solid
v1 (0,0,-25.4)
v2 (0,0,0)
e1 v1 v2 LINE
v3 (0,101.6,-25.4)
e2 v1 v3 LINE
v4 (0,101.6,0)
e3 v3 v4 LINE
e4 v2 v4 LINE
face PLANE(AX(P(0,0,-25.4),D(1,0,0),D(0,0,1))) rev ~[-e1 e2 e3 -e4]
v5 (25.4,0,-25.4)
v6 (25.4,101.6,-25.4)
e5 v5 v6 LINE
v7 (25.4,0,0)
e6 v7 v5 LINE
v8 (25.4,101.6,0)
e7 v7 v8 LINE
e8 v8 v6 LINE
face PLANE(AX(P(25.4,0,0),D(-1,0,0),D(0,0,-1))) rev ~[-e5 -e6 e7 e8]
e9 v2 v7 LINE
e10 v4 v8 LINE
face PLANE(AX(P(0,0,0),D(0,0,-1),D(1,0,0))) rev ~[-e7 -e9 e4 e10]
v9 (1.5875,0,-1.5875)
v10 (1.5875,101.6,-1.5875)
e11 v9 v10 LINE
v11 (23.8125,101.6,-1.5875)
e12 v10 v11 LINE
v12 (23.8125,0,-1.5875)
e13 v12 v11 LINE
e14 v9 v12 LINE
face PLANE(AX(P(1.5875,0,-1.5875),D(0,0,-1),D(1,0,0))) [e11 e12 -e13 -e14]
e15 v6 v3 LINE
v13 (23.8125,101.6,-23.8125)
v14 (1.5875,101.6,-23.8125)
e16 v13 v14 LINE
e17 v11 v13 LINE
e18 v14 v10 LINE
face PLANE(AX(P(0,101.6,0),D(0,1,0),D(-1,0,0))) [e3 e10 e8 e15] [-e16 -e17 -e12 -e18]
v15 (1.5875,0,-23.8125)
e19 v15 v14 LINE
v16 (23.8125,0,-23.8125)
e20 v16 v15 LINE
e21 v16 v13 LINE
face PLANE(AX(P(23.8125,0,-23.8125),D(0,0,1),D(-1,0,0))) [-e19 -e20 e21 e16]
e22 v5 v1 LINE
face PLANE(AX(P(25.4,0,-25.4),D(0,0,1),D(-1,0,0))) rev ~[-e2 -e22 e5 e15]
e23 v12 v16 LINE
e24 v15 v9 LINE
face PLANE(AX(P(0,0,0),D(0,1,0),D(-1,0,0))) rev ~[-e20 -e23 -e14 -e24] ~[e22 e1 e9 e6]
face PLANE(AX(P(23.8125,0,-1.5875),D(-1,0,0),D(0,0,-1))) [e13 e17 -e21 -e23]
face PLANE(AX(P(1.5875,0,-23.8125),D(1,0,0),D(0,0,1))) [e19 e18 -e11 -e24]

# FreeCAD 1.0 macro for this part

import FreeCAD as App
import Part
import Sketcher
from FreeCAD import Vector
Q = App.Units.Quantity


def add_polygon(sketch, points):
    """Adds a closed chain of lines whose ends are joined by coincident constraints."""
    first, n = sketch.GeometryCount, len(points)
    for a, b in zip(points, points[1:] + points[:1]):
        sketch.addGeometry(Part.LineSegment(App.Vector(*a, 0), App.Vector(*b, 0)), False)
    for i in range(n):
        sketch.addConstraint(Sketcher.Constraint("Coincident", first + i, 2, first + (i + 1) % n, 1))

doc = App.newDocument("Part")
body = doc.addObject("PartDesign::Body", "Body")

# Sketch on XZ plane
sketch1 = body.newObject("Sketcher::SketchObject", "Sketch")
sketch1.AttachmentSupport = (doc.getObject("XZ_Plane"), [""])
sketch1.MapMode = "FlatFace"
add_polygon(sketch1, [(0, -25), (0, 0), (25, 0), (25, -25)])  # lines 0-3
add_polygon(sketch1, [(24, -2), (2, -2), (2, -24), (24, -24)])  # lines 4-7
sketch1.addConstraint(Sketcher.Constraint("Vertical", 0))
sketch1.addConstraint(Sketcher.Constraint("Horizontal", 1))
sketch1.addConstraint(Sketcher.Constraint("Vertical", 2))
sketch1.addConstraint(Sketcher.Constraint("Horizontal", 3))
sketch1.addConstraint(Sketcher.Constraint("Horizontal", 4))
sketch1.addConstraint(Sketcher.Constraint("Vertical", 5))
sketch1.addConstraint(Sketcher.Constraint("Horizontal", 6))
sketch1.addConstraint(Sketcher.Constraint("Vertical", 7))
sketch1.addConstraint(Sketcher.Constraint("Coincident", 0, 2, -1, 1))
sketch1.addConstraint(Sketcher.Constraint("Equal", 3, 0))
sketch1.addConstraint(Sketcher.Constraint("Equal", 6, 5))
sketch1.addConstraint(Sketcher.Constraint("DistanceX", 1, 1, 1, 2, Q("1 in")))
sketch1.addConstraint(Sketcher.Constraint("DistanceX", -1, 1, 4, 2, Q("0.0625 in")))
sketch1.addConstraint(Sketcher.Constraint("DistanceY", 4, 2, -1, 1, Q("0.0625 in")))
sketch1.addConstraint(Sketcher.Constraint("DistanceY", 3, 2, 5, 2, Q("0.0625 in")))
pad1 = body.newObject("PartDesign::Pad", "Pad")
pad1.Profile = sketch1
pad1.Length = Q("4 in")
pad1.Reversed = True

doc.recompute()
